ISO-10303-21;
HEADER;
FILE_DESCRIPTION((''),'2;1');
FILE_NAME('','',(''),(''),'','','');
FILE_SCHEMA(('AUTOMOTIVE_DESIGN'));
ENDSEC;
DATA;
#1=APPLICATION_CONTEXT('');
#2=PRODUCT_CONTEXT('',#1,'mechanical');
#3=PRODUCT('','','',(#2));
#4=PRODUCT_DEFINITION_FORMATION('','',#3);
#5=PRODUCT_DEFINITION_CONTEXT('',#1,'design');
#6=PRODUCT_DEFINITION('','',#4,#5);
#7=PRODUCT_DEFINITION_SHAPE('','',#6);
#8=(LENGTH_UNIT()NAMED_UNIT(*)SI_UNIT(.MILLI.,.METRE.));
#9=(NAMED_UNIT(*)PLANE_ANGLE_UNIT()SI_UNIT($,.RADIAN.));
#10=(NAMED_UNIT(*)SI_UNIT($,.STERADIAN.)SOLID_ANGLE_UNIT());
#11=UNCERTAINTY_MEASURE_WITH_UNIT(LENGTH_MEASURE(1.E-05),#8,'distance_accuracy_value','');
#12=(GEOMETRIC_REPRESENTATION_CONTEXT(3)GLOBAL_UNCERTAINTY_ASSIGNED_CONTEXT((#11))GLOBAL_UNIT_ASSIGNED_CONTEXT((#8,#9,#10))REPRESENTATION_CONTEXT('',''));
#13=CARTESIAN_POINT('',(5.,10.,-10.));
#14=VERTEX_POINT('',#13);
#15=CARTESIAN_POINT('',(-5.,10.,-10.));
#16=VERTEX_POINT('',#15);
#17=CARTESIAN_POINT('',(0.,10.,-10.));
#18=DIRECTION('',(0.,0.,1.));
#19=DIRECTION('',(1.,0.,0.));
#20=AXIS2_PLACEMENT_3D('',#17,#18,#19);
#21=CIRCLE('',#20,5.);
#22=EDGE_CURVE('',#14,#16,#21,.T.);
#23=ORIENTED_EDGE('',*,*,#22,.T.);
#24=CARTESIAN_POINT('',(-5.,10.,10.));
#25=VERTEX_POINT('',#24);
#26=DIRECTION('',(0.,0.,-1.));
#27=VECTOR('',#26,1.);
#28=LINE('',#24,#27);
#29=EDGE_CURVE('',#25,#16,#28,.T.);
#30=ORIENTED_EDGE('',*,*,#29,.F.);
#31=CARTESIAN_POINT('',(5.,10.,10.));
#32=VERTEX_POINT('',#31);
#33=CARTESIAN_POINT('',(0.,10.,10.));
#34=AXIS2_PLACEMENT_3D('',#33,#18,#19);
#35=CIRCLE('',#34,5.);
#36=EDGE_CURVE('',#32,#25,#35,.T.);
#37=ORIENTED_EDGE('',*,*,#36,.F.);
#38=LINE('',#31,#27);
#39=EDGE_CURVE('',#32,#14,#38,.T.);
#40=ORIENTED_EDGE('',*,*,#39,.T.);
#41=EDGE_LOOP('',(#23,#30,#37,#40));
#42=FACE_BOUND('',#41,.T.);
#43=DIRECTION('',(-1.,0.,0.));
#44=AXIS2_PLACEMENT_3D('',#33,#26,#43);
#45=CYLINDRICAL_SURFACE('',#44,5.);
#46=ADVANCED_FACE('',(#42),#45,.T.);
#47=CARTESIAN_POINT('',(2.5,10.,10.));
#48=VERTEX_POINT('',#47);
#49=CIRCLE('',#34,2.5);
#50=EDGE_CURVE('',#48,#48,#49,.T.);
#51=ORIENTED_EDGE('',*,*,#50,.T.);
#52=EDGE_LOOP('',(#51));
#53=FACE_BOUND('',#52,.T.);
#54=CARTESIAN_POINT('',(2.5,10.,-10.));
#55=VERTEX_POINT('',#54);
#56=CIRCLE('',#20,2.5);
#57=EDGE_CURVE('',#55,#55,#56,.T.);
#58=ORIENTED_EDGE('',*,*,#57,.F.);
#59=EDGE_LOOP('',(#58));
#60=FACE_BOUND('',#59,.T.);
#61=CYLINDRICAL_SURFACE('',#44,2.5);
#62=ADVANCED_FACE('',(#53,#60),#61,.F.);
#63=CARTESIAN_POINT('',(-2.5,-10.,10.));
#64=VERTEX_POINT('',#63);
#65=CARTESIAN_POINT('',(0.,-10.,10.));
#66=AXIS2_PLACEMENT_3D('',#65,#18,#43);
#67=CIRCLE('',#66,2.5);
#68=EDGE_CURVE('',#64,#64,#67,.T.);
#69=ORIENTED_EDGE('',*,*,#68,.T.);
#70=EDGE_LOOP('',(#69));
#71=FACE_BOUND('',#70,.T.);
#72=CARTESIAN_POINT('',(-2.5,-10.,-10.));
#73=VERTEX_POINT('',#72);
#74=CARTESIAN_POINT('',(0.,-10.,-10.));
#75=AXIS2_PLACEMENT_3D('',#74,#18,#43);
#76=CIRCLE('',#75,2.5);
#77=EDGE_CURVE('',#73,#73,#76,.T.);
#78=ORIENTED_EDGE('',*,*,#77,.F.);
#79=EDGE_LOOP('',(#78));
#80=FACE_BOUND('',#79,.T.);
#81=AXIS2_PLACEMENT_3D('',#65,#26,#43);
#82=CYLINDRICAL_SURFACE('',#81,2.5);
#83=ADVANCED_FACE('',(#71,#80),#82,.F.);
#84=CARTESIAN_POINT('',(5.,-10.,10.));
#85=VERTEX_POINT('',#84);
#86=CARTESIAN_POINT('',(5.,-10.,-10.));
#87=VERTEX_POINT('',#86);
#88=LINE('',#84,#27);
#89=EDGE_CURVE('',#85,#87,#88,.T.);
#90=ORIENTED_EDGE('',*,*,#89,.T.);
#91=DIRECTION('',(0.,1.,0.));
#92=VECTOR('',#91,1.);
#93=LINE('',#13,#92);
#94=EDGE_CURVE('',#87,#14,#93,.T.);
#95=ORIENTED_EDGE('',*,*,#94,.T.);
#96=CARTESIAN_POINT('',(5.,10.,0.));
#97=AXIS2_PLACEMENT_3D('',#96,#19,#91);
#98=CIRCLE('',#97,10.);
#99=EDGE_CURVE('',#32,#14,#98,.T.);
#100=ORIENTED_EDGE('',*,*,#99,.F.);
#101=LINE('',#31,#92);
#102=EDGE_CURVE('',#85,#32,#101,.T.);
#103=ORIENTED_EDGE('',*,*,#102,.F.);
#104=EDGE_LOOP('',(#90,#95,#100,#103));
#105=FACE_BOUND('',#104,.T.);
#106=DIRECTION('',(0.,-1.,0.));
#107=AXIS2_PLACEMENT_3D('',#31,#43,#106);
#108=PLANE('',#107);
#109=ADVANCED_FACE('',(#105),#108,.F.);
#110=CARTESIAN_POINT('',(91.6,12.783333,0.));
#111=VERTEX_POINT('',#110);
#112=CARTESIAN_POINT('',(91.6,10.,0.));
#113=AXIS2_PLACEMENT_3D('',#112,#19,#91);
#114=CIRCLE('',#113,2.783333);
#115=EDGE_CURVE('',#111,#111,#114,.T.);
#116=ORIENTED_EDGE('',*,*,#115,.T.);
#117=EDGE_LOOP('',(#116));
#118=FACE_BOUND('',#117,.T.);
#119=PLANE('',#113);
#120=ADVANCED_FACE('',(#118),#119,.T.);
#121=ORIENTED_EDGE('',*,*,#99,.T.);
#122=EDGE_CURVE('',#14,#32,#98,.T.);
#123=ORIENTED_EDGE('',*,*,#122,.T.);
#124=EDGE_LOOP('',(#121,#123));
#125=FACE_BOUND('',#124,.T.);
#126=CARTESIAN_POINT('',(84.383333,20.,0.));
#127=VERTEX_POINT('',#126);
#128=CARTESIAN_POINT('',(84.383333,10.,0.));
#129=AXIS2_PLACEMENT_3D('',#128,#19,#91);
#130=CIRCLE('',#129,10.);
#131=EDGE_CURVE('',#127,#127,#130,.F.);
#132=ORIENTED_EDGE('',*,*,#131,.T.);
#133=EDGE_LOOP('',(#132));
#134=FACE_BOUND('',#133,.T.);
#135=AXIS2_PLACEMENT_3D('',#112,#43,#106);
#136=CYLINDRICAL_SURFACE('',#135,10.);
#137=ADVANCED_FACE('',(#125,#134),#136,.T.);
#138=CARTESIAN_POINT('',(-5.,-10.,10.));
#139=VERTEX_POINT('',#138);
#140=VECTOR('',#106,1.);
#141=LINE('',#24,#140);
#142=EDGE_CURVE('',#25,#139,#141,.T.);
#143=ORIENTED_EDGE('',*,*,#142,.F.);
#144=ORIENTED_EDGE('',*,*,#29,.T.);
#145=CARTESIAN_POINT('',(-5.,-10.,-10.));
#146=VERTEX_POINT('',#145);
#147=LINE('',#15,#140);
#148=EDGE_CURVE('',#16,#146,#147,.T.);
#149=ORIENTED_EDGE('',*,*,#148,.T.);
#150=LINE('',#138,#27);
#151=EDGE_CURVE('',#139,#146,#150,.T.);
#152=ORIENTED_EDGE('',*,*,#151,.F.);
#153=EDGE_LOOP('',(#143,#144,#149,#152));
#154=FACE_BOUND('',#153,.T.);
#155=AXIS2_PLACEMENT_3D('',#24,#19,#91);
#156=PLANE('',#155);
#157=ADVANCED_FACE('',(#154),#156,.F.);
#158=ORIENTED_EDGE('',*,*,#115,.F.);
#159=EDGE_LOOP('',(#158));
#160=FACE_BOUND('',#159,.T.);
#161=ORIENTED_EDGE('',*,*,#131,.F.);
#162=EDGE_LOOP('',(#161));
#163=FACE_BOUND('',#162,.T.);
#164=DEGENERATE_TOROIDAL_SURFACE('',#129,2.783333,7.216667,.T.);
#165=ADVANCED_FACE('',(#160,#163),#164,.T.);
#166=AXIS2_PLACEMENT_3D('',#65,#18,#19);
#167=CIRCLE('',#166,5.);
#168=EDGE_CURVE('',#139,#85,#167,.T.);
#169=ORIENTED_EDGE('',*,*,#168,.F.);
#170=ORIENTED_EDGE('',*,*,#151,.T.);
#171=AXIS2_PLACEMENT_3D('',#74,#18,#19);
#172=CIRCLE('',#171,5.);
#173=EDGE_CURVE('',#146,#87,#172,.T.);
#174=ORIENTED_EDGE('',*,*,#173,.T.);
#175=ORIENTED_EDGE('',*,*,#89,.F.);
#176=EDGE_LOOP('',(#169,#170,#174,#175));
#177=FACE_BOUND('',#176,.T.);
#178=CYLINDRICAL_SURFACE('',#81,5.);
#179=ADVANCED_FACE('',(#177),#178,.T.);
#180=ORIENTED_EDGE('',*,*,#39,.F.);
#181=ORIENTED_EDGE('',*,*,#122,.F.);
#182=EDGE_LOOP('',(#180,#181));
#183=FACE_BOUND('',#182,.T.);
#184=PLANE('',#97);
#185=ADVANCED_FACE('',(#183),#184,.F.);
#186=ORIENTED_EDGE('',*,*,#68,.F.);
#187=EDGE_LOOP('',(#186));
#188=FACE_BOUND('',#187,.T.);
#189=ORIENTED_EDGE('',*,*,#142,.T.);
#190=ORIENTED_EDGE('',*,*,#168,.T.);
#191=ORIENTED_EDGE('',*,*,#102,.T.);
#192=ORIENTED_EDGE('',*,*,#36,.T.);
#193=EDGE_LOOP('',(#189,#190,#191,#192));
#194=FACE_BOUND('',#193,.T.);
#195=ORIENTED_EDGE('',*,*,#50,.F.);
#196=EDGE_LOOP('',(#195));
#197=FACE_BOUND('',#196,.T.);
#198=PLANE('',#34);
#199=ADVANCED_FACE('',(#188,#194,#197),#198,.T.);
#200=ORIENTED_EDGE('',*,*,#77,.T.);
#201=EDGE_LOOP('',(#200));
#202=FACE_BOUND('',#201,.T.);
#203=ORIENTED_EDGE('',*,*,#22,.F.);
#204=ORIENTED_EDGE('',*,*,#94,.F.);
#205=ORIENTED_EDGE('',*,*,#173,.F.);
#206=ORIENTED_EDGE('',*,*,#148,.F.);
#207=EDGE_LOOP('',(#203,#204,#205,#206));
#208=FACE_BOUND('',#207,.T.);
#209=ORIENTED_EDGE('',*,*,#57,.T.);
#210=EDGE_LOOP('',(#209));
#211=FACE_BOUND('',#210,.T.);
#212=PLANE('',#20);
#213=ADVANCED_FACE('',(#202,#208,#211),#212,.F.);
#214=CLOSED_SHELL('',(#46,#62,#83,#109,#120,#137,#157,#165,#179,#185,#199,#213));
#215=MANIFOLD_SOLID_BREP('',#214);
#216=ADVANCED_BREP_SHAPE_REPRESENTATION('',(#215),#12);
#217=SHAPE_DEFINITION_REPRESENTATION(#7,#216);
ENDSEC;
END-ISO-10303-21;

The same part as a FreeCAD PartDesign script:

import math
import FreeCAD as App
import Part
import Sketcher


def edges_at(feature, points):
    """Names of the edges that pass closest to the given points."""
    edges = feature.Shape.Edges
    near = lambda p: min(range(len(edges)), key=lambda i: edges[i].distToShape(Part.Vertex(*p))[0])
    return sorted({f"Edge{near(p) + 1}" for p in points})

doc = App.newDocument("Part")
body = doc.addObject("PartDesign::Body", "Body")

# Sketch on XY plane
sketch1 = doc.addObject("Sketcher::SketchObject", "Sketch")
body.addObject(sketch1)
sketch1.AttachmentSupport = (doc.XY_Plane, [""])
sketch1.MapMode = "FlatFace"
sketch1.addGeometry([
    Part.LineSegment(App.Vector(5, -10, 0), App.Vector(5, 10, 0)),  # 0
    Part.ArcOfCircle(Part.Circle(App.Vector(0, 10, 0), App.Vector(0, 0, 1), 5), math.radians(0), math.radians(180)),  # 1
    Part.LineSegment(App.Vector(-5, 10, 0), App.Vector(-5, -10, 0)),  # 2
    Part.ArcOfCircle(Part.Circle(App.Vector(0, -10, 0), App.Vector(0, 0, 1), 5), math.radians(180), math.radians(360)),  # 3
    Part.Circle(App.Vector(0, -10, 0), App.Vector(0, 0, 1), 2.5),  # 4
    Part.Circle(App.Vector(0, 10, 0), App.Vector(0, 0, 1), 2.5),  # 5
], False)
sketch1.addConstraint([
    Sketcher.Constraint("Tangent", 0, 2, 1, 1),
    Sketcher.Constraint("Tangent", 1, 2, 2, 1),
    Sketcher.Constraint("Tangent", 2, 2, 3, 1),
    Sketcher.Constraint("Tangent", 3, 2, 0, 1),
    Sketcher.Constraint("Vertical", 0),
    Sketcher.Constraint("Vertical", 2),
    Sketcher.Constraint("Coincident", 4, 3, 3, 3),
    Sketcher.Constraint("Coincident", 5, 3, 1, 3),
    Sketcher.Constraint("Equal", 4, 5),
    Sketcher.Constraint("Symmetric", 1, 3, 3, 3, -1, 1),
    Sketcher.Constraint("Diameter", 4, 5.0),
    Sketcher.Constraint("Radius", 1, 5.0),
    Sketcher.Constraint("DistanceY", 0, 1, 0, 2, 20.0),
])
pad1 = doc.addObject("PartDesign::Pad", "Pad")
body.addObject(pad1)
pad1.Profile = sketch1
pad1.Length = 20
pad1.Midplane = True

# Sketch on YZ plane
sketch2 = doc.addObject("Sketcher::SketchObject", "Sketch001")
body.addObject(sketch2)
sketch2.AttachmentSupport = (doc.YZ_Plane, [""])
sketch2.MapMode = "FlatFace"
sketch2.AttachmentOffset = App.Placement(App.Vector(0, 0, 5), App.Rotation())
sketch2.addGeometry(Part.Circle(App.Vector(10, 0, 0), App.Vector(0, 0, 1), 10), False)
sketch2.addConstraint([
    Sketcher.Constraint("PointOnObject", 0, 3, -1),
    Sketcher.Constraint("Diameter", 0, 20.0),
    Sketcher.Constraint("DistanceX", -1, 1, 0, 3, 10.0),
])
pad2 = doc.addObject("PartDesign::Pad", "Pad001")
body.addObject(pad2)
pad2.Profile = sketch2
pad2.Length = 86.6
doc.recompute()

fillet = doc.addObject("PartDesign::Fillet", "Fillet")
body.addObject(fillet)
fillet.Base = (pad2, edges_at(pad2, [(91.6, 10, 10)]))
fillet.Radius = 7.216667

doc.recompute()
